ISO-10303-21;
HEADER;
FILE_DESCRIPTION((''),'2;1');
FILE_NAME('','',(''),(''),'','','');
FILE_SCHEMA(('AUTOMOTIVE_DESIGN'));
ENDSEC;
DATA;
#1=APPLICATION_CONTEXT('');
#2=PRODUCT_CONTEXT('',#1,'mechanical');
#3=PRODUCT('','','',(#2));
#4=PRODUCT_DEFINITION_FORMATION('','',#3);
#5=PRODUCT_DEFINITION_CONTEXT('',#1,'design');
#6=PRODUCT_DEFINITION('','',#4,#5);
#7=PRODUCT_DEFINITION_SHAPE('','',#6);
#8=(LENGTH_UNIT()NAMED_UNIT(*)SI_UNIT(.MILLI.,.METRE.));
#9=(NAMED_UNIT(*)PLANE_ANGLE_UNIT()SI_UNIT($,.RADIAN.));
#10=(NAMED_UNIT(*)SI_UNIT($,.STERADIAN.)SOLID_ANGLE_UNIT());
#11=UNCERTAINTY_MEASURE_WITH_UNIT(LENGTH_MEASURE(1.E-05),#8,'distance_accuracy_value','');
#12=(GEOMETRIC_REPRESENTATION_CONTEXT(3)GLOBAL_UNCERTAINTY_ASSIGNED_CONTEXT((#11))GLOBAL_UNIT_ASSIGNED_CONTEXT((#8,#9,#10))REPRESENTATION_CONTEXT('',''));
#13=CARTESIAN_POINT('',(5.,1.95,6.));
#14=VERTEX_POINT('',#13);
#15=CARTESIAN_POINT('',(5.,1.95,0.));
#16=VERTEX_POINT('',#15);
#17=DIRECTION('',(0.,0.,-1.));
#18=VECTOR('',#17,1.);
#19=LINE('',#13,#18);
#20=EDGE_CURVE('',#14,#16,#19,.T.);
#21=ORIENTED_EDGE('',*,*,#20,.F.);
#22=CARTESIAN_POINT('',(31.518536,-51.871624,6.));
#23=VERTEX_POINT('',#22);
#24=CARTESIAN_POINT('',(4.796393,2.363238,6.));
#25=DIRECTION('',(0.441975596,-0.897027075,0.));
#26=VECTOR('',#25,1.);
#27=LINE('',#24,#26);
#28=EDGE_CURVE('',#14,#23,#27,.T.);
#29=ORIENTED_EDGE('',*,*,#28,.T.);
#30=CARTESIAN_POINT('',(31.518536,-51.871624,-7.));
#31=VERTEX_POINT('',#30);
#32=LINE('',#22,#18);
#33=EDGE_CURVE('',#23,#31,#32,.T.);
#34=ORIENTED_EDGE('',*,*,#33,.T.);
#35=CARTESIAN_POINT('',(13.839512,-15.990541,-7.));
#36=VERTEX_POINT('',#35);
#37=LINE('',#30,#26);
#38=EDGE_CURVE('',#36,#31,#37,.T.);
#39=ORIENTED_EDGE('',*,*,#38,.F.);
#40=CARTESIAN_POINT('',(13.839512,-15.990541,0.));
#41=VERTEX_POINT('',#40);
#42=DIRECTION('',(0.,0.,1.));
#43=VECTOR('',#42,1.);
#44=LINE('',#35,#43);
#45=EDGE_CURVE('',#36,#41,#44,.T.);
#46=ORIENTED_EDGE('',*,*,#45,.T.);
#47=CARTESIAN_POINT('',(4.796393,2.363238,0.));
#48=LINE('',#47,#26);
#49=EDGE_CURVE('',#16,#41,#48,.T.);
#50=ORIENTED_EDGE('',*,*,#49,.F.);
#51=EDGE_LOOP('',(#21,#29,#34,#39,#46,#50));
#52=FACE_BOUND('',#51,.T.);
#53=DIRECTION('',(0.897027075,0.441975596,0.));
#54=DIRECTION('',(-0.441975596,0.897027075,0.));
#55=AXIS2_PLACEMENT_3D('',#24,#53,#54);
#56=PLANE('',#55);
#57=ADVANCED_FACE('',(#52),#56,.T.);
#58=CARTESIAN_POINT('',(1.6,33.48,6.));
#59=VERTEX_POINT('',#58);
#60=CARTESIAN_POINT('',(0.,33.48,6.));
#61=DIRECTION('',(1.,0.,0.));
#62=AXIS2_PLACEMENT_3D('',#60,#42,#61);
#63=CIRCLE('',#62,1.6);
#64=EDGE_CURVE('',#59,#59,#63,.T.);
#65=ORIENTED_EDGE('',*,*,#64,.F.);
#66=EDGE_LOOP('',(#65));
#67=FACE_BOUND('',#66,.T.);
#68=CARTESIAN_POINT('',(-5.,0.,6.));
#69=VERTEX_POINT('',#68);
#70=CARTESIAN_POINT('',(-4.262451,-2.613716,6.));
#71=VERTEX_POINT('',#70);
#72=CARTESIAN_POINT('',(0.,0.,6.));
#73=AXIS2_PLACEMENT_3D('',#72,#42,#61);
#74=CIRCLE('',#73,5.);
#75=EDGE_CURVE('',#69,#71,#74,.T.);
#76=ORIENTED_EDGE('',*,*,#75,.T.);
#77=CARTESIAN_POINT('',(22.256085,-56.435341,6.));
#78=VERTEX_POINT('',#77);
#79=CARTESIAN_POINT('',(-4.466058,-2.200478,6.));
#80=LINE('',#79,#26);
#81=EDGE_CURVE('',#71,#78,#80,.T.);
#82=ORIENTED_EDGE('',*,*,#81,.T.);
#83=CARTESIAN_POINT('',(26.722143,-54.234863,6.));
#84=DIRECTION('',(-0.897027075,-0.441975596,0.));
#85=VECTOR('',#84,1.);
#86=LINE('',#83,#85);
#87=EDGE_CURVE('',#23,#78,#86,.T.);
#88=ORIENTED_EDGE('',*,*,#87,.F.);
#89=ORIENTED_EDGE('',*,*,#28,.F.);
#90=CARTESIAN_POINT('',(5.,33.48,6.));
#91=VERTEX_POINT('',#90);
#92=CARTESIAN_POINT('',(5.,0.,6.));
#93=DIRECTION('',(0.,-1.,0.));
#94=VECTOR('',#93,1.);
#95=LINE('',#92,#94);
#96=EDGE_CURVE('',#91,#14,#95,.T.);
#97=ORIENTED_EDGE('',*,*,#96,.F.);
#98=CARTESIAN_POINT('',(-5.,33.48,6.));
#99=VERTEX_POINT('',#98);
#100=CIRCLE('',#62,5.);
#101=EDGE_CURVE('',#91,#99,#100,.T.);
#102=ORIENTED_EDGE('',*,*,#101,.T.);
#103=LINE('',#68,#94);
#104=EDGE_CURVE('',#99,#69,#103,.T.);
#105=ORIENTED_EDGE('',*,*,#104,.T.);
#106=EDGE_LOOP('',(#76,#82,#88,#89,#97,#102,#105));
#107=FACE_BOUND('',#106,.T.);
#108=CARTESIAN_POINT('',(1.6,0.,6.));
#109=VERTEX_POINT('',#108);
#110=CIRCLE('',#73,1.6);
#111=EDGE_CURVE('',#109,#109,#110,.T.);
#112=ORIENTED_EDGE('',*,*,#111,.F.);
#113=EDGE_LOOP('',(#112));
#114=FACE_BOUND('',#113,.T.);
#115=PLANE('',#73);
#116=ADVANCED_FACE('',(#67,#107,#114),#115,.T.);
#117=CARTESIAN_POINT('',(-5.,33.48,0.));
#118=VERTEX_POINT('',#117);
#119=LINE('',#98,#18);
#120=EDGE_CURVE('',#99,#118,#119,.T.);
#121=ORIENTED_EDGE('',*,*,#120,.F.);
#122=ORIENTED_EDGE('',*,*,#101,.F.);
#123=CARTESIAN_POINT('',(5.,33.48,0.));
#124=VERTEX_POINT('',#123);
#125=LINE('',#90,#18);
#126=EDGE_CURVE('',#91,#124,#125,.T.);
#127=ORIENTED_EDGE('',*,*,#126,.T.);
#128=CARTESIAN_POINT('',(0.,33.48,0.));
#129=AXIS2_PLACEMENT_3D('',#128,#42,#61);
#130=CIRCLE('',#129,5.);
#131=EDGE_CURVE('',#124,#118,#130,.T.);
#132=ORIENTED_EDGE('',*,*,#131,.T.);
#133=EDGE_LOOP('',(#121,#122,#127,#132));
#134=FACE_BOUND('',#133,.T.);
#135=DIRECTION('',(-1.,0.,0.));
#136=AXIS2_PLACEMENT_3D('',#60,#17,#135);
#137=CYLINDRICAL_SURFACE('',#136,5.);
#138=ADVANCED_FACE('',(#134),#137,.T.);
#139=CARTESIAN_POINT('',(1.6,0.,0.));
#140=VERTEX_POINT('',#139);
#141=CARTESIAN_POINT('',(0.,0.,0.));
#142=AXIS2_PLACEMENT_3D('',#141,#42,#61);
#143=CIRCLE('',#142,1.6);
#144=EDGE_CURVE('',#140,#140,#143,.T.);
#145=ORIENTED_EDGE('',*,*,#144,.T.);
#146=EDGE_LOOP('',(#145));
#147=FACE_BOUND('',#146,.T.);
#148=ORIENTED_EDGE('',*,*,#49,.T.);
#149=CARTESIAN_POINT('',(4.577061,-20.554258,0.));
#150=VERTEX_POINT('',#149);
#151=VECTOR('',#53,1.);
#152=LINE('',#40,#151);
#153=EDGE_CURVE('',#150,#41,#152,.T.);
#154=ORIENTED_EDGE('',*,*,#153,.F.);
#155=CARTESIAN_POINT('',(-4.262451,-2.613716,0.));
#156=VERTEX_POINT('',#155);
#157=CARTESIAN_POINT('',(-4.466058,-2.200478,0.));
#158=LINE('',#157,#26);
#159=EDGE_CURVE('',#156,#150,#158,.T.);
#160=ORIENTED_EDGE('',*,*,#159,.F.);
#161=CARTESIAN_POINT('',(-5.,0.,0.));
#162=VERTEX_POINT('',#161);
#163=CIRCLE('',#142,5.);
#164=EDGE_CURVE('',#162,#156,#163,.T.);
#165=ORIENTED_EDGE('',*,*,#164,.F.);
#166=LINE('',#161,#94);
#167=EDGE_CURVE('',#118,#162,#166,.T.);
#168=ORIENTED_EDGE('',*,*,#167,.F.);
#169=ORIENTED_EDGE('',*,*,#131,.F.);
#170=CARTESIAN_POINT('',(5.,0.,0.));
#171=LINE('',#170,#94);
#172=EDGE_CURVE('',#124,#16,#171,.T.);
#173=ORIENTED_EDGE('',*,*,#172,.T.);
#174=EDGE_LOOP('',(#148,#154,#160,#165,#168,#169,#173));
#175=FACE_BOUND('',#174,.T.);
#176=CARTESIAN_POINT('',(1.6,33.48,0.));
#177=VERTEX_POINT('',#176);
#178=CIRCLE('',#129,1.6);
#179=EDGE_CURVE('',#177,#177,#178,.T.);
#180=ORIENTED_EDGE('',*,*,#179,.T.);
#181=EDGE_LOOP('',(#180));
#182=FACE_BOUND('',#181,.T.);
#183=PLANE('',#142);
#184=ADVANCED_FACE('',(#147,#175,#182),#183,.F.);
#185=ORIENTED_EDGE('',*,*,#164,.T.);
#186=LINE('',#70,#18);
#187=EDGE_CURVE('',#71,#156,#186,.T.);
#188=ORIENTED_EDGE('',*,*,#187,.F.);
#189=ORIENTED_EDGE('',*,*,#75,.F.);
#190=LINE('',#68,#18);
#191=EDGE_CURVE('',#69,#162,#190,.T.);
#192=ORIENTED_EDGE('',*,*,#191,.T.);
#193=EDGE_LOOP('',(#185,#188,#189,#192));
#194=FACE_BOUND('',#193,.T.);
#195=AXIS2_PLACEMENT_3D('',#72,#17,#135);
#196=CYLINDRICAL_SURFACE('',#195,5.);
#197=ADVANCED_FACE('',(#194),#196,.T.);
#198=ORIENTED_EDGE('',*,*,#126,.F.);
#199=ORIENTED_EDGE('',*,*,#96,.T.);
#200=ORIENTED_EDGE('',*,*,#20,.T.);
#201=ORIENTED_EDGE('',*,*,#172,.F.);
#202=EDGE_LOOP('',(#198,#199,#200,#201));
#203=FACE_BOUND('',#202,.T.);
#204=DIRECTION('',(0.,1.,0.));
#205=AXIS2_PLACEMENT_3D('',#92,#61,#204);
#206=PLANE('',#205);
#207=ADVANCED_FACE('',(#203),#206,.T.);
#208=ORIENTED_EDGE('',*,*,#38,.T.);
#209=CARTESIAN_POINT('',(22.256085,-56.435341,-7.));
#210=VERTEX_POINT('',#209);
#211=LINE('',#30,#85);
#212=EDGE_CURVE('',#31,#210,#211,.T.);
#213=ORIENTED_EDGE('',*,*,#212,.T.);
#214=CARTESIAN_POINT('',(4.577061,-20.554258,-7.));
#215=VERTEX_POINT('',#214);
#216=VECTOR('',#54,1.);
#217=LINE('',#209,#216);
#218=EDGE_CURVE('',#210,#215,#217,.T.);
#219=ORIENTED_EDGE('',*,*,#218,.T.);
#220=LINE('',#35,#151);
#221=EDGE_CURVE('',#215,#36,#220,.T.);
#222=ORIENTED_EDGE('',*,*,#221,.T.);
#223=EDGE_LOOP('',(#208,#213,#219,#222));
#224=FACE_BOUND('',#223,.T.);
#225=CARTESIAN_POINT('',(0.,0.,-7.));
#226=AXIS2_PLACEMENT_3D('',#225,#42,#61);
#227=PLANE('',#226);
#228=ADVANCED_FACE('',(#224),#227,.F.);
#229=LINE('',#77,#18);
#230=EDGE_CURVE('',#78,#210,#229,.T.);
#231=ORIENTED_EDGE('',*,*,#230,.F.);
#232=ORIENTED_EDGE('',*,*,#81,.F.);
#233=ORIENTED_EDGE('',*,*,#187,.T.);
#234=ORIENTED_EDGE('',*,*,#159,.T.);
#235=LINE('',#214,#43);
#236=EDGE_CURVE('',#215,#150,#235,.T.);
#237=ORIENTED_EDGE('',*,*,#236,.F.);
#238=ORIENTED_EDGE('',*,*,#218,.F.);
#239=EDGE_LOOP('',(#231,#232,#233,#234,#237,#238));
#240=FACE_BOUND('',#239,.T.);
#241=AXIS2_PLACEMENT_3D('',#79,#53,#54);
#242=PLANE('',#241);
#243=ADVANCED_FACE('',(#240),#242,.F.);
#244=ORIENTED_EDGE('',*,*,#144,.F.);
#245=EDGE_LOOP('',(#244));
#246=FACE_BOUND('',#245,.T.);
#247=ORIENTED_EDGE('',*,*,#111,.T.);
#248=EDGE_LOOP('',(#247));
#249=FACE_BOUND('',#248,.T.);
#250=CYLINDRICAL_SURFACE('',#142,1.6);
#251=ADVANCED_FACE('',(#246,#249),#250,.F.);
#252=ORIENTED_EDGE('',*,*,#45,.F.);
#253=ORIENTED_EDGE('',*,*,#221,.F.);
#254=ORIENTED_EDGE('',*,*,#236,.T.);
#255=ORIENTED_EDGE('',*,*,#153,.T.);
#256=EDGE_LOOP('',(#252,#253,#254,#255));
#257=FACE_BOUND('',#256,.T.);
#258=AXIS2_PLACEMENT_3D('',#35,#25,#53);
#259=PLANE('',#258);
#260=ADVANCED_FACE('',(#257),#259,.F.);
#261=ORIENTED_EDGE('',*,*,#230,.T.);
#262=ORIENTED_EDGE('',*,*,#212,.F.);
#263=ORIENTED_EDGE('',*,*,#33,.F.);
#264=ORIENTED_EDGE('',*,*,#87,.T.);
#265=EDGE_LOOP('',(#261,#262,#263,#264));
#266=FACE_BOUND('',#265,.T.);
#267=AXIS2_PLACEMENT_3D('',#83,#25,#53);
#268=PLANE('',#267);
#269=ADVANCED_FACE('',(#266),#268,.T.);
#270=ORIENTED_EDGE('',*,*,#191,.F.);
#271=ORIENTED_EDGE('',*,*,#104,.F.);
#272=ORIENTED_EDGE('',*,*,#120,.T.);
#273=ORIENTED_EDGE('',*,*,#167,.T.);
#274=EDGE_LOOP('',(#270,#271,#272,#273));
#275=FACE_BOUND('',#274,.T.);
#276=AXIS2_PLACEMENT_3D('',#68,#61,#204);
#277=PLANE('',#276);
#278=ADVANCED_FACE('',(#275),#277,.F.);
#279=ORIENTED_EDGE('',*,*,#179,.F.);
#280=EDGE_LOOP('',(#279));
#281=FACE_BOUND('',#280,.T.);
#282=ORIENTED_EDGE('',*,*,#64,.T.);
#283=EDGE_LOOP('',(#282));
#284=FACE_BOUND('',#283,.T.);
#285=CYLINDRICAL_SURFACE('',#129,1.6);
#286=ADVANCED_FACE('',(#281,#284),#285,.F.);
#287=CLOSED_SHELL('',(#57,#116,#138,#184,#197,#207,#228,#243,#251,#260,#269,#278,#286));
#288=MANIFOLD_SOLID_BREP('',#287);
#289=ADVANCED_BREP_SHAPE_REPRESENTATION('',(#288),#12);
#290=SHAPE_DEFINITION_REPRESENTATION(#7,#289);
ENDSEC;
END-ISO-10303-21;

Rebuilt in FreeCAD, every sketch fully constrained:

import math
import FreeCAD as App
import Part
import Sketcher
from FreeCAD import Vector
Q = App.Units.Quantity

doc = App.newDocument("Part")
body = doc.addObject("PartDesign::Body", "Body")

sketch1 = body.newObject("Sketcher::SketchObject", "Sketch")
sketch1.AttachmentSupport = (doc.getObject("XY_Plane"), [""])
sketch1.MapMode = "FlatFace"
sketch1.addGeometry([
    Part.LineSegment(Vector(-5, 33.5, 0), Vector(-5, 0, 0)),
    Part.ArcOfCircle(Part.Circle(Vector(0, 0, 0), Vector(0, 0, 1), 5), math.radians(180), math.radians(212)),
    Part.LineSegment(Vector(-4.3, -2.6, 0), Vector(22.3, -56.4, 0)),
    Part.LineSegment(Vector(22.3, -56.4, 0), Vector(31.5, -51.9, 0)),
    Part.LineSegment(Vector(31.5, -51.9, 0), Vector(5, 1.9, 0)),
    Part.LineSegment(Vector(5, 1.9, 0), Vector(5, 33.5, 0)),
    Part.ArcOfCircle(Part.Circle(Vector(0, 33.5, 0), Vector(0, 0, 1), 5), math.radians(0), math.radians(180)),
], False)
sketch1.addConstraint([
    Sketcher.Constraint("Tangent", 0, 2, 1, 1),
    Sketcher.Constraint("Coincident", 1, 2, 2, 1),
    Sketcher.Constraint("Coincident", 2, 2, 3, 1),
    Sketcher.Constraint("Coincident", 3, 2, 4, 1),
    Sketcher.Constraint("Coincident", 4, 2, 5, 1),
    Sketcher.Constraint("Tangent", 5, 2, 6, 1),
    Sketcher.Constraint("Tangent", 6, 2, 0, 1),
    Sketcher.Constraint("Vertical", 0),
    Sketcher.Constraint("Vertical", 5),
    Sketcher.Constraint("Coincident", 1, 3, -1, 1),
    Sketcher.Constraint("Equal", 1, 6),
    Sketcher.Constraint("Perpendicular", 2, 3),
    Sketcher.Constraint("Perpendicular", 3, 4),
    Sketcher.Constraint("Equal", 2, 4),
    Sketcher.Constraint("Radius", 1, Q("5 mm")),
    Sketcher.Constraint("Distance", 2, Q("60 mm")),
    Sketcher.Constraint("DistanceY", 0, 2, 0, 1, Q("33.48 mm")),
    Sketcher.Constraint("DistanceY", 5, 1, 5, 2, Q("31.53 mm")),
    Sketcher.Constraint("Angle", 2, Q("-63.77 deg")),
])
pad1 = body.newObject("PartDesign::Pad", "Pad")
pad1.Profile = sketch1
pad1.Length = 6

sketch2 = body.newObject("Sketcher::SketchObject", "Sketch001")
sketch2.AttachmentSupport = (doc.getObject("XY_Plane"), [""])
sketch2.MapMode = "FlatFace"
sketch2.AttachmentOffset = App.Placement(Vector(0, 0, 6), App.Rotation())
sketch2.addGeometry([
    Part.Circle(Vector(0, 33.5, 0), Vector(0, 0, 1), 1.6),
    Part.Circle(Vector(0, 0, 0), Vector(0, 0, 1), 1.6),
], False)
sketch2.addConstraint([
    Sketcher.Constraint("Coincident", 1, 3, -1, 1),
    Sketcher.Constraint("Equal", 0, 1),
    Sketcher.Constraint("PointOnObject", 0, 3, -2),
    Sketcher.Constraint("Diameter", 0, Q("3.2 mm")),
    Sketcher.Constraint("DistanceY", -1, 1, 0, 3, Q("33.48 mm")),
])
pocket1 = body.newObject("PartDesign::Pocket", "Pocket")
pocket1.Profile = sketch2
pocket1.Type = "ThroughAll"

sketch3 = body.newObject("Sketcher::SketchObject", "Sketch002")
sketch3.AttachmentSupport = (doc.getObject("XY_Plane"), [""])
sketch3.MapMode = "FlatFace"
sketch3.addGeometry([
    Part.LineSegment(Vector(32, -52, 0), Vector(22, -56, 0)),
    Part.LineSegment(Vector(22, -56, 0), Vector(5, -21, 0)),
    Part.LineSegment(Vector(5, -21, 0), Vector(14, -16, 0)),
    Part.LineSegment(Vector(14, -16, 0), Vector(32, -52, 0)),
], False)
sketch3.addConstraint([
    Sketcher.Constraint("Coincident", 0, 2, 1, 1),
    Sketcher.Constraint("Coincident", 1, 2, 2, 1),
    Sketcher.Constraint("Coincident", 2, 2, 3, 1),
    Sketcher.Constraint("Coincident", 3, 2, 0, 1),
    Sketcher.Constraint("Perpendicular", 0, 1),
    Sketcher.Constraint("Perpendicular", 1, 2),
    Sketcher.Constraint("Perpendicular", 2, 3),
    Sketcher.Constraint("Distance", 1, Q("40 mm")),
    Sketcher.Constraint("Angle", 0, Q("-153.77 deg")),
    Sketcher.Constraint("DistanceY", 0, 2, 2, 2, Q("40.444799 mm")),
    Sketcher.Constraint("DistanceY", 0, 2, -1, 1, Q("56.435341 mm")),
    Sketcher.Constraint("DistanceX", -1, 1, 1, 2, Q("4.577061 mm")),
])
pad2 = body.newObject("PartDesign::Pad", "Pad001")
pad2.Profile = sketch3
pad2.Length = 7
pad2.Reversed = True

doc.recompute()
